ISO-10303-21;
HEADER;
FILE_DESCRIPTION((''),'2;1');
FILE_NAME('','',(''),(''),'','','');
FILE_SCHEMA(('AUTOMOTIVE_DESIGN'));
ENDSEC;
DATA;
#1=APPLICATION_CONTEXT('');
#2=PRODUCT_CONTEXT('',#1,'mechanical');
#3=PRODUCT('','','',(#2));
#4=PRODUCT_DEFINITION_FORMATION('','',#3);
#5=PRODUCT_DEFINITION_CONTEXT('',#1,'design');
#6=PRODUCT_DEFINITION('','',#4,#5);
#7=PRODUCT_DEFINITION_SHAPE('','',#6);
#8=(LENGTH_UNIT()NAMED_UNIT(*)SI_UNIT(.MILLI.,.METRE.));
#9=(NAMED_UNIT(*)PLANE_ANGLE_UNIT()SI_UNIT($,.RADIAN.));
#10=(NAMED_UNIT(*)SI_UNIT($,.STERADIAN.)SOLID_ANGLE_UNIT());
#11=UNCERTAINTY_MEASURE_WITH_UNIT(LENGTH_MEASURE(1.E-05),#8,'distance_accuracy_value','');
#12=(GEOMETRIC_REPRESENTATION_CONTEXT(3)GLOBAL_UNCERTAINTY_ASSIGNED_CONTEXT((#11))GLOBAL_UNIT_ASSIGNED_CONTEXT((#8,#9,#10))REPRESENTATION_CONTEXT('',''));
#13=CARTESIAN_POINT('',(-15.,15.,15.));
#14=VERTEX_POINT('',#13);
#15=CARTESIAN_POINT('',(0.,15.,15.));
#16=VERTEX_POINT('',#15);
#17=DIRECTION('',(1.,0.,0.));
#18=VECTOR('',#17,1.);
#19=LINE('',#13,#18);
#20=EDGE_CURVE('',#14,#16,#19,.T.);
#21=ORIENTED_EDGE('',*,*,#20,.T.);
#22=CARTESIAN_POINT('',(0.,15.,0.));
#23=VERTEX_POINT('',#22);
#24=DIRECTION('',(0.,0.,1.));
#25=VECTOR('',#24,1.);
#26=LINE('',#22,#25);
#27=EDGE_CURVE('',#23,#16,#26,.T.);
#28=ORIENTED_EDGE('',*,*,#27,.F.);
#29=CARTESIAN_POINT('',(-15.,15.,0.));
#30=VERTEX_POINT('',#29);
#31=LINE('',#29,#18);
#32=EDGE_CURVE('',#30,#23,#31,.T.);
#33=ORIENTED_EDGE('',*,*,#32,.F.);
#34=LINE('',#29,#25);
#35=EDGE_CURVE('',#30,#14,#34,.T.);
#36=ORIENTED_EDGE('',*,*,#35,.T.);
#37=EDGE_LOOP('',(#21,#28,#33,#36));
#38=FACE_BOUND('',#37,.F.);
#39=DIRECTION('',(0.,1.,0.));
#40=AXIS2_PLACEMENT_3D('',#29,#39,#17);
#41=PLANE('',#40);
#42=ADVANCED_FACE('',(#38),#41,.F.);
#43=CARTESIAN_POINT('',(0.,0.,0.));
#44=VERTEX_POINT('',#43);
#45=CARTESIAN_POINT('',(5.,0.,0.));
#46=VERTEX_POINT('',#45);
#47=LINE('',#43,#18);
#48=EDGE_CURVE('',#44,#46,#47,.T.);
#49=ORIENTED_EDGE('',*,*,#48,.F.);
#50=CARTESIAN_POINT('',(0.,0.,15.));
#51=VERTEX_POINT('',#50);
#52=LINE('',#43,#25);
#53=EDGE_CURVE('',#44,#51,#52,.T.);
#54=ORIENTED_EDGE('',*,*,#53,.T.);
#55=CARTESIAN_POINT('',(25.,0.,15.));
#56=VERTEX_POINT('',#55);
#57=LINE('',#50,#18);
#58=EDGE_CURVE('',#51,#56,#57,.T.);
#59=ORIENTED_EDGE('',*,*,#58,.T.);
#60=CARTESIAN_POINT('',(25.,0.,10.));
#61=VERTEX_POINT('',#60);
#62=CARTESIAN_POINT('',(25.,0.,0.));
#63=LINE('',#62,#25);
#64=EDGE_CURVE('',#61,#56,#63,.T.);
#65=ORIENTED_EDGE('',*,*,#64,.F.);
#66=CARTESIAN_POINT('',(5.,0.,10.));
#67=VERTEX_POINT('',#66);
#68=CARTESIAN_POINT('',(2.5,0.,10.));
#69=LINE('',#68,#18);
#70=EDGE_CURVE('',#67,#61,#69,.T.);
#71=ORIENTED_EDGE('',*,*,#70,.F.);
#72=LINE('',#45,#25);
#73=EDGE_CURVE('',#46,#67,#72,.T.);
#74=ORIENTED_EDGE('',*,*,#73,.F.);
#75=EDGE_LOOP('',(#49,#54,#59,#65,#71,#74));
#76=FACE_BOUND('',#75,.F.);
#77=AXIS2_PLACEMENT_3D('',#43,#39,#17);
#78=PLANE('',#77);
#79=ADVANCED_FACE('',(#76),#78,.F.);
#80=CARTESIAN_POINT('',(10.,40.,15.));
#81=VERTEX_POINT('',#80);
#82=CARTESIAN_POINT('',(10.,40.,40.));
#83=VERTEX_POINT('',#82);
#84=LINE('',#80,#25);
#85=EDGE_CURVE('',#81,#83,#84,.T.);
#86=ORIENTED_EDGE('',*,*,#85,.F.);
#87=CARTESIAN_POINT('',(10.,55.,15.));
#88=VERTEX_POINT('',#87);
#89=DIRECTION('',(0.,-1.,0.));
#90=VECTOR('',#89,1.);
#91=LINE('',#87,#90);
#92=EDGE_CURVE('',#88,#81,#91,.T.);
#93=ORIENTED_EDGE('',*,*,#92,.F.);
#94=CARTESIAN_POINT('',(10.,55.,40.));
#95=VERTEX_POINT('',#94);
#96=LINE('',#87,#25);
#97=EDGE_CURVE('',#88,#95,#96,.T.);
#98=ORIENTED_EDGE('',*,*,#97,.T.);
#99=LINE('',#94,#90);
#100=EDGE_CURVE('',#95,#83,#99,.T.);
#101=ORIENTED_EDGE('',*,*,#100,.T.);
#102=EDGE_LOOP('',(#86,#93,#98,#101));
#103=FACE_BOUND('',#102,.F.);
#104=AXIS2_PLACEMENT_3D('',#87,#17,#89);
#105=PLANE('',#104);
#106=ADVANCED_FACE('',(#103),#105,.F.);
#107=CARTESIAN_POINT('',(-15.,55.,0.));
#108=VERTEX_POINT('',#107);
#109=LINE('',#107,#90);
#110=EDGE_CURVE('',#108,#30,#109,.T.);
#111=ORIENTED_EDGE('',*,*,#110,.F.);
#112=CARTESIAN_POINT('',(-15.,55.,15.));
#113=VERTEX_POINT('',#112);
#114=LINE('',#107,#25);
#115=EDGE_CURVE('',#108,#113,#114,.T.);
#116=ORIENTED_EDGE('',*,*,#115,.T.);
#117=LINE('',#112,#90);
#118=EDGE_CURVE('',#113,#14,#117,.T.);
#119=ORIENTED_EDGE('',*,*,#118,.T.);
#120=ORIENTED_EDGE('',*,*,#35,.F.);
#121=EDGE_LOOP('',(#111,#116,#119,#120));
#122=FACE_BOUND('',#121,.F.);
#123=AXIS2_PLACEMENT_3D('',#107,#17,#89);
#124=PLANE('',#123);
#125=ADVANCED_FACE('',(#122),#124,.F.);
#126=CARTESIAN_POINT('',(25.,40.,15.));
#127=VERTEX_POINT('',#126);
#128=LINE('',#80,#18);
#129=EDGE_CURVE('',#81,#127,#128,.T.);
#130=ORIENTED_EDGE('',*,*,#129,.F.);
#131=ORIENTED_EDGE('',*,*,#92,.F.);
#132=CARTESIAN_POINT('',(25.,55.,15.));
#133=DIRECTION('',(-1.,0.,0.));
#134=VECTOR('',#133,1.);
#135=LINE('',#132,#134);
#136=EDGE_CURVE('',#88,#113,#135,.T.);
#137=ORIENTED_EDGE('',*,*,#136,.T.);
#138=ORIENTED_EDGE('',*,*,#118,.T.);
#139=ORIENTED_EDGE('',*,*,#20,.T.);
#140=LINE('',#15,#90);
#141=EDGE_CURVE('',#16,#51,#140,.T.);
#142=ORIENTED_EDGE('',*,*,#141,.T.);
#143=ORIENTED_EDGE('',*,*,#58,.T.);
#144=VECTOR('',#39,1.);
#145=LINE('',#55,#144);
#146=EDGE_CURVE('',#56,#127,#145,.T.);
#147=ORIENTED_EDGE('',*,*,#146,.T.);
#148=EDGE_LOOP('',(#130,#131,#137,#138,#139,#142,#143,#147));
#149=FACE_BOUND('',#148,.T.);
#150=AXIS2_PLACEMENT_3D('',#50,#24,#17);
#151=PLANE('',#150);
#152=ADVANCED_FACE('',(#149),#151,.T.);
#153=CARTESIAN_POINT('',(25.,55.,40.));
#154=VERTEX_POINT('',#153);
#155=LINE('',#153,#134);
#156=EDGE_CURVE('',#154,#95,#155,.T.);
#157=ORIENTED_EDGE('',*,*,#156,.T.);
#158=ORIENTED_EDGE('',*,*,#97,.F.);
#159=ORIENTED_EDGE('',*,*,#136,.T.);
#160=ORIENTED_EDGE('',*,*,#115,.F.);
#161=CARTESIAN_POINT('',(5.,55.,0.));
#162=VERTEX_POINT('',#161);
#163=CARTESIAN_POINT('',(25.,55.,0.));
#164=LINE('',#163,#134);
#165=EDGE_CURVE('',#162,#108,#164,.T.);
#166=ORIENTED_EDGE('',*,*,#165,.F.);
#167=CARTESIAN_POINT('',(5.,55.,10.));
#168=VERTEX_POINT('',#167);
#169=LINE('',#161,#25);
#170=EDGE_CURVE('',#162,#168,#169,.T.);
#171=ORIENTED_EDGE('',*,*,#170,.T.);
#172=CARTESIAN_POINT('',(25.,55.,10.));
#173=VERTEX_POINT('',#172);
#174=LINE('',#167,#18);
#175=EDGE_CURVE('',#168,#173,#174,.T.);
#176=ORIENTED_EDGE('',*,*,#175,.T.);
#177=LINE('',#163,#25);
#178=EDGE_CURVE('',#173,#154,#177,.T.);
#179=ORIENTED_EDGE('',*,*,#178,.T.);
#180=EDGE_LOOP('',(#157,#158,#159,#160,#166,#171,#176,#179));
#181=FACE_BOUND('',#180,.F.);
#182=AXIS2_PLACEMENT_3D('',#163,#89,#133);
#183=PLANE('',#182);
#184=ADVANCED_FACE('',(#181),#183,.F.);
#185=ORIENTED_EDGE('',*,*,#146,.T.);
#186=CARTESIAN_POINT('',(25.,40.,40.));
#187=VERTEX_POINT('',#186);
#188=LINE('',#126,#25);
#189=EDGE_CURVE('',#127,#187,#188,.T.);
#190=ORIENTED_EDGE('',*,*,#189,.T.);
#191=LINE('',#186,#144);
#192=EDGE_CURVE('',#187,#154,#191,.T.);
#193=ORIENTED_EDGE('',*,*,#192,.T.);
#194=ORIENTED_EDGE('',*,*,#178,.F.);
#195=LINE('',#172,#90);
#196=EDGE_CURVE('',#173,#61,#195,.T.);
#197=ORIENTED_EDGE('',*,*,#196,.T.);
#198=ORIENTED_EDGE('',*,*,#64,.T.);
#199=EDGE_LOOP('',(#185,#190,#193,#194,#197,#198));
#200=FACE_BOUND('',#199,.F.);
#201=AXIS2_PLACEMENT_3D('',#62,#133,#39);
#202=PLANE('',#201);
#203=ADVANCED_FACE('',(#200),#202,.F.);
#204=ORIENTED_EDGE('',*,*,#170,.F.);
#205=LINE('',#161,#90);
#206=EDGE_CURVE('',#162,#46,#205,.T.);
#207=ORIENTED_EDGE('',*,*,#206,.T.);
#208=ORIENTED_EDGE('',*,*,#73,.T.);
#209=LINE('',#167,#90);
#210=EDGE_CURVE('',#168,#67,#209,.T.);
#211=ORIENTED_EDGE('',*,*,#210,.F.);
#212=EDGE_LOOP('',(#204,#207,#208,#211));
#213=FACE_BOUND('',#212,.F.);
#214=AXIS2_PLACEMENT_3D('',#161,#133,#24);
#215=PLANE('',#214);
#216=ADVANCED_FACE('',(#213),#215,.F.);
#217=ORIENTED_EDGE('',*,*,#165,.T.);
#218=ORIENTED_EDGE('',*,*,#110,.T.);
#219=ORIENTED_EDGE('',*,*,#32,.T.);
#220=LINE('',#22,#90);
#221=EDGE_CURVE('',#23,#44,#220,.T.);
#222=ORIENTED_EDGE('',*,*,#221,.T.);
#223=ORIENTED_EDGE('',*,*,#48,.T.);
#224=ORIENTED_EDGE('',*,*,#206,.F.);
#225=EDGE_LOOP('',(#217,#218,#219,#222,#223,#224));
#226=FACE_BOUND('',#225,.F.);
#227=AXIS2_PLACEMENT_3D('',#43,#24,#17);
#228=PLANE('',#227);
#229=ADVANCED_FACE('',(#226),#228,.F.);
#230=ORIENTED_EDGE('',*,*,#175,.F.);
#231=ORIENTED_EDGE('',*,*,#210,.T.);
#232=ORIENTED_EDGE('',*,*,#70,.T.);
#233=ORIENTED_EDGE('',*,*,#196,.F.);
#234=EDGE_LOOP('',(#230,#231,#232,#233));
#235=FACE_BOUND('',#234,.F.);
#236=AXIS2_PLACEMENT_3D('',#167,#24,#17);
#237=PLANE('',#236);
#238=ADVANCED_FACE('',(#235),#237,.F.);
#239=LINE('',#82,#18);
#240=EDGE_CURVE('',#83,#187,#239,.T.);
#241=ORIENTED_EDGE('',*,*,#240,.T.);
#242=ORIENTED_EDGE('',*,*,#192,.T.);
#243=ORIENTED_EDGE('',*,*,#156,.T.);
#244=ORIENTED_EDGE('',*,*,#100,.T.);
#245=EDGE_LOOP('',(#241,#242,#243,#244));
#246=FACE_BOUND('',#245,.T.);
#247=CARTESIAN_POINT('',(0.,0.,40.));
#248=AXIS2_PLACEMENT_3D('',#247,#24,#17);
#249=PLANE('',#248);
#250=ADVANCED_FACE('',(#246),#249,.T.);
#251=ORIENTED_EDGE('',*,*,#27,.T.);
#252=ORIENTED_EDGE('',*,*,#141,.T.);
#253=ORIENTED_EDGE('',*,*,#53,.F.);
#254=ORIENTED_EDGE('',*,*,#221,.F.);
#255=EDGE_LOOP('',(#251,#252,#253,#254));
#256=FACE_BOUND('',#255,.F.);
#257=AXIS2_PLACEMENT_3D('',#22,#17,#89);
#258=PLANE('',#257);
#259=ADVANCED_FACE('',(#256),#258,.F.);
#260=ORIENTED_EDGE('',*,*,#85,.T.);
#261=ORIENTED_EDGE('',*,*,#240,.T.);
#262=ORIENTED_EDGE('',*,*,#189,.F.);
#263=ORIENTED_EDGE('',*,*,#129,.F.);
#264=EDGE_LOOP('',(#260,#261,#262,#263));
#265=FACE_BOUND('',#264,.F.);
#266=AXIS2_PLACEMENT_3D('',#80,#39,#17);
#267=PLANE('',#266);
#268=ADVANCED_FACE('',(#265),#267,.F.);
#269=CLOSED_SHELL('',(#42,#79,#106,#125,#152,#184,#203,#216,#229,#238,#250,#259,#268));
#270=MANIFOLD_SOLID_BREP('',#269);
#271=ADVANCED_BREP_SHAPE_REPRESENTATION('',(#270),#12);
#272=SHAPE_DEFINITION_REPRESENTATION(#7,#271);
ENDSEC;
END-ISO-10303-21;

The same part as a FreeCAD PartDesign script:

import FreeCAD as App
import Part
import Sketcher

V = App.Vector

doc = App.newDocument("Part")
body = doc.addObject("PartDesign::Body", "Body")

# Sketch on XY plane
sketch1 = doc.addObject("Sketcher::SketchObject", "Sketch")
body.addObject(sketch1)
sketch1.AttachmentSupport = (doc.XY_Plane, [""])
sketch1.MapMode = "FlatFace"
sketch1.addGeometry(Part.LineSegment(V(0, 15, 0), V(0, 0, 0)), False)
sketch1.addGeometry(Part.LineSegment(V(0, 0, 0), V(25, 0, 0)), False)
sketch1.addGeometry(Part.LineSegment(V(25, 0, 0), V(25, 55, 0)), False)
sketch1.addGeometry(Part.LineSegment(V(25, 55, 0), V(-15, 55, 0)), False)
sketch1.addGeometry(Part.LineSegment(V(-15, 55, 0), V(-15, 15, 0)), False)
sketch1.addGeometry(Part.LineSegment(V(-15, 15, 0), V(0, 15, 0)), False)
sketch1.addConstraint(Sketcher.Constraint("Coincident", 0, 2, 1, 1))
sketch1.addConstraint(Sketcher.Constraint("Coincident", 1, 2, 2, 1))
sketch1.addConstraint(Sketcher.Constraint("Coincident", 2, 2, 3, 1))
sketch1.addConstraint(Sketcher.Constraint("Coincident", 3, 2, 4, 1))
sketch1.addConstraint(Sketcher.Constraint("Coincident", 4, 2, 5, 1))
sketch1.addConstraint(Sketcher.Constraint("Coincident", 5, 2, 0, 1))
sketch1.addConstraint(Sketcher.Constraint("Vertical", 0))
sketch1.addConstraint(Sketcher.Constraint("Horizontal", 1))
sketch1.addConstraint(Sketcher.Constraint("Vertical", 2))
sketch1.addConstraint(Sketcher.Constraint("Horizontal", 3))
sketch1.addConstraint(Sketcher.Constraint("Vertical", 4))
sketch1.addConstraint(Sketcher.Constraint("Horizontal", 5))
sketch1.addConstraint(Sketcher.Constraint("Coincident", 0, 2, -1, 1))
sketch1.addConstraint(Sketcher.Constraint("Equal", 5, 0))
sketch1.addConstraint(Sketcher.Constraint("Equal", 3, 4))
sketch1.addConstraint(Sketcher.Constraint("DistanceX", 1, 1, 1, 2, 25.0))
sketch1.addConstraint(Sketcher.Constraint("DistanceX", 3, 2, 3, 1, 40.0))
pad1 = doc.addObject("PartDesign::Pad", "Pad")
body.addObject(pad1)
pad1.Profile = sketch1
pad1.Length = 15

# Sketch on XY plane
sketch2 = doc.addObject("Sketcher::SketchObject", "Sketch001")
body.addObject(sketch2)
sketch2.AttachmentSupport = (doc.XY_Plane, [""])
sketch2.MapMode = "FlatFace"
sketch2.AttachmentOffset = App.Placement(V(0, 0, 15), App.Rotation())
sketch2.addGeometry(Part.LineSegment(V(25, 40, 0), V(25, 55, 0)), False)
sketch2.addGeometry(Part.LineSegment(V(25, 55, 0), V(10, 55, 0)), False)
sketch2.addGeometry(Part.LineSegment(V(10, 55, 0), V(10, 40, 0)), False)
sketch2.addGeometry(Part.LineSegment(V(10, 40, 0), V(25, 40, 0)), False)
sketch2.addConstraint(Sketcher.Constraint("Coincident", 0, 2, 1, 1))
sketch2.addConstraint(Sketcher.Constraint("Coincident", 1, 2, 2, 1))
sketch2.addConstraint(Sketcher.Constraint("Coincident", 2, 2, 3, 1))
sketch2.addConstraint(Sketcher.Constraint("Coincident", 3, 2, 0, 1))
sketch2.addConstraint(Sketcher.Constraint("Vertical", 0))
sketch2.addConstraint(Sketcher.Constraint("Horizontal", 1))
sketch2.addConstraint(Sketcher.Constraint("Vertical", 2))
sketch2.addConstraint(Sketcher.Constraint("Horizontal", 3))
sketch2.addConstraint(Sketcher.Constraint("Equal", 3, 0))
sketch2.addConstraint(Sketcher.Constraint("DistanceX", 1, 2, 1, 1, 15.0))
sketch2.addConstraint(Sketcher.Constraint("DistanceX", -1, 1, 0, 2, 25.0))
sketch2.addConstraint(Sketcher.Constraint("DistanceY", -1, 1, 0, 2, 55.0))
pad2 = doc.addObject("PartDesign::Pad", "Pad001")
body.addObject(pad2)
pad2.Profile = sketch2
pad2.Length = 25

# Sketch on XZ plane
sketch3 = doc.addObject("Sketcher::SketchObject", "Sketch002")
body.addObject(sketch3)
sketch3.AttachmentSupport = (doc.XZ_Plane, [""])
sketch3.MapMode = "FlatFace"
sketch3.AttachmentOffset = App.Placement(V(0, 0, -55), App.Rotation())
sketch3.addGeometry(Part.LineSegment(V(25, 10, 0), V(25, 0, 0)), False)
sketch3.addGeometry(Part.LineSegment(V(25, 0, 0), V(5, 0, 0)), False)
sketch3.addGeometry(Part.LineSegment(V(5, 0, 0), V(5, 10, 0)), False)
sketch3.addGeometry(Part.LineSegment(V(5, 10, 0), V(25, 10, 0)), False)
sketch3.addConstraint(Sketcher.Constraint("Coincident", 0, 2, 1, 1))
sketch3.addConstraint(Sketcher.Constraint("Coincident", 1, 2, 2, 1))
sketch3.addConstraint(Sketcher.Constraint("Coincident", 2, 2, 3, 1))
sketch3.addConstraint(Sketcher.Constraint("Coincident", 3, 2, 0, 1))
sketch3.addConstraint(Sketcher.Constraint("Vertical", 0))
sketch3.addConstraint(Sketcher.Constraint("Horizontal", 1))
sketch3.addConstraint(Sketcher.Constraint("Vertical", 2))
sketch3.addConstraint(Sketcher.Constraint("Horizontal", 3))
sketch3.addConstraint(Sketcher.Constraint("PointOnObject", 0, 2, -1))
sketch3.addConstraint(Sketcher.Constraint("DistanceX", 1, 2, 1, 1, 20.0))
sketch3.addConstraint(Sketcher.Constraint("DistanceY", 0, 2, 0, 1, 10.0))
sketch3.addConstraint(Sketcher.Constraint("DistanceX", -1, 1, 0, 2, 25.0))
pocket1 = doc.addObject("PartDesign::Pocket", "Pocket")
body.addObject(pocket1)
pocket1.Profile = sketch3
pocket1.Type = "ThroughAll"
pocket1.Reversed = True

doc.recompute()
